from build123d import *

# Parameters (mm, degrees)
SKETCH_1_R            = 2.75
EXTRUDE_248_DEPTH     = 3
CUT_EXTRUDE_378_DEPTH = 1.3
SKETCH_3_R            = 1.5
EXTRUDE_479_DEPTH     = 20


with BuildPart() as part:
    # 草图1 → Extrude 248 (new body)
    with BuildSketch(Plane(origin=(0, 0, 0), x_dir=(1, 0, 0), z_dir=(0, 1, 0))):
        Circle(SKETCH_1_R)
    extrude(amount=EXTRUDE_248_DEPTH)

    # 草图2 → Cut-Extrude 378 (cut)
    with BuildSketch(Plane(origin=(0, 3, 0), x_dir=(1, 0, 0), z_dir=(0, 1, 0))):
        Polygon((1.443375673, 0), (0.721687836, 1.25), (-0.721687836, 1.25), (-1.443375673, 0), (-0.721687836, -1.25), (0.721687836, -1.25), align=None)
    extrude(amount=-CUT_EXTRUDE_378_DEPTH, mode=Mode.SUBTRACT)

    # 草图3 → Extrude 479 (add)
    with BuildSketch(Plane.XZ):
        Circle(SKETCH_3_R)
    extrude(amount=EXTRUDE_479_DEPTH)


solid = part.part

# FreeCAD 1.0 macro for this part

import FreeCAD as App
import Part
import Sketcher
from FreeCAD import Vector
Q = App.Units.Quantity


def add_polygon(sketch, points):
    """Adds a closed chain of lines whose ends are joined by coincident constraints."""
    first, n = sketch.GeometryCount, len(points)
    for a, b in zip(points, points[1:] + points[:1]):
        sketch.addGeometry(Part.LineSegment(App.Vector(*a, 0), App.Vector(*b, 0)), False)
    for i in range(n):
        sketch.addConstraint(Sketcher.Constraint("Coincident", first + i, 2, first + (i + 1) % n, 1))

doc = App.newDocument("Part")
params = doc.addObject("Spreadsheet::Sheet", "Params")
for row, (alias, value) in enumerate([
    ("sketch1_diameter", "5.5 mm"),
    ("pad1_length", "3 mm"),
    ("pocket1_length", "1.3 mm"),
    ("sketch3_diameter", "3 mm"),
    ("pad2_length", "20 mm"),
], start=1):
    params.set(f"A{row}", alias)
    params.set(f"B{row}", "=" + value)
    params.setAlias(f"B{row}", alias)

body = doc.addObject("PartDesign::Body", "Body")

sketch1 = body.newObject("Sketcher::SketchObject", "Sketch")
sketch1.AttachmentSupport = (doc.getObject("XZ_Plane"), [""])
sketch1.MapMode = "FlatFace"
sketch1.addGeometry(Part.Circle(Vector(0, 0, 0), Vector(0, 0, 1), 2.8), False)
sketch1.addConstraint([
    Sketcher.Constraint("Coincident", 0, 3, -1, 1),
    Sketcher.Constraint("Diameter", 0, 5.5),
])
sketch1.setExpression("Constraints[1]", "Params.sketch1_diameter")
pad1 = body.newObject("PartDesign::Pad", "Pad")
pad1.Profile = sketch1
pad1.setExpression("Length", "Params.pad1_length")
pad1.Reversed = True

sketch2 = body.newObject("Sketcher::SketchObject", "Sketch001")
sketch2.AttachmentSupport = (doc.getObject("XZ_Plane"), [""])
sketch2.MapMode = "FlatFace"
sketch2.AttachmentOffset = App.Placement(Vector(0, 0, -3), App.Rotation())
add_polygon(sketch2, [(1.4, 0), (0.7, -1.2), (-0.7, -1.2), (-1.4, 0), (-0.7, 1.2), (0.7, 1.2)])
sketch2.addConstraint([
    Sketcher.Constraint("Horizontal", 1),
    Sketcher.Constraint("Horizontal", 4),
    Sketcher.Constraint("Symmetric", 0, 2, 3, 2, -1, 1),
    Sketcher.Constraint("Symmetric", 2, 2, 5, 2, -1, 1),
    Sketcher.Constraint("PointOnObject", 2, 2, -1),
    Sketcher.Constraint("Parallel", 2, 5),
    Sketcher.Constraint("Vertical", 1, 2, 3, 2),
    Sketcher.Constraint("Angle", 0, Q("-120 deg")),
    Sketcher.Constraint("DistanceY", 1, 2, 3, 2, 2.5),
    Sketcher.Constraint("DistanceX", 1, 2, 1, 1, 1.443376),
])
pocket1 = body.newObject("PartDesign::Pocket", "Pocket")
pocket1.Profile = sketch2
pocket1.setExpression("Length", "Params.pocket1_length")
pocket1.Reversed = True

sketch3 = body.newObject("Sketcher::SketchObject", "Sketch002")
sketch3.AttachmentSupport = (doc.getObject("XZ_Plane"), [""])
sketch3.MapMode = "FlatFace"
sketch3.addGeometry(Part.Circle(Vector(0, 0, 0), Vector(0, 0, 1), 1.5), False)
sketch3.addConstraint([
    Sketcher.Constraint("Coincident", 0, 3, -1, 1),
    Sketcher.Constraint("Diameter", 0, 3.0),
])
sketch3.setExpression("Constraints[1]", "Params.sketch3_diameter")
pad2 = body.newObject("PartDesign::Pad", "Pad001")
pad2.Profile = sketch3
pad2.setExpression("Length", "Params.pad2_length")

doc.recompute()
